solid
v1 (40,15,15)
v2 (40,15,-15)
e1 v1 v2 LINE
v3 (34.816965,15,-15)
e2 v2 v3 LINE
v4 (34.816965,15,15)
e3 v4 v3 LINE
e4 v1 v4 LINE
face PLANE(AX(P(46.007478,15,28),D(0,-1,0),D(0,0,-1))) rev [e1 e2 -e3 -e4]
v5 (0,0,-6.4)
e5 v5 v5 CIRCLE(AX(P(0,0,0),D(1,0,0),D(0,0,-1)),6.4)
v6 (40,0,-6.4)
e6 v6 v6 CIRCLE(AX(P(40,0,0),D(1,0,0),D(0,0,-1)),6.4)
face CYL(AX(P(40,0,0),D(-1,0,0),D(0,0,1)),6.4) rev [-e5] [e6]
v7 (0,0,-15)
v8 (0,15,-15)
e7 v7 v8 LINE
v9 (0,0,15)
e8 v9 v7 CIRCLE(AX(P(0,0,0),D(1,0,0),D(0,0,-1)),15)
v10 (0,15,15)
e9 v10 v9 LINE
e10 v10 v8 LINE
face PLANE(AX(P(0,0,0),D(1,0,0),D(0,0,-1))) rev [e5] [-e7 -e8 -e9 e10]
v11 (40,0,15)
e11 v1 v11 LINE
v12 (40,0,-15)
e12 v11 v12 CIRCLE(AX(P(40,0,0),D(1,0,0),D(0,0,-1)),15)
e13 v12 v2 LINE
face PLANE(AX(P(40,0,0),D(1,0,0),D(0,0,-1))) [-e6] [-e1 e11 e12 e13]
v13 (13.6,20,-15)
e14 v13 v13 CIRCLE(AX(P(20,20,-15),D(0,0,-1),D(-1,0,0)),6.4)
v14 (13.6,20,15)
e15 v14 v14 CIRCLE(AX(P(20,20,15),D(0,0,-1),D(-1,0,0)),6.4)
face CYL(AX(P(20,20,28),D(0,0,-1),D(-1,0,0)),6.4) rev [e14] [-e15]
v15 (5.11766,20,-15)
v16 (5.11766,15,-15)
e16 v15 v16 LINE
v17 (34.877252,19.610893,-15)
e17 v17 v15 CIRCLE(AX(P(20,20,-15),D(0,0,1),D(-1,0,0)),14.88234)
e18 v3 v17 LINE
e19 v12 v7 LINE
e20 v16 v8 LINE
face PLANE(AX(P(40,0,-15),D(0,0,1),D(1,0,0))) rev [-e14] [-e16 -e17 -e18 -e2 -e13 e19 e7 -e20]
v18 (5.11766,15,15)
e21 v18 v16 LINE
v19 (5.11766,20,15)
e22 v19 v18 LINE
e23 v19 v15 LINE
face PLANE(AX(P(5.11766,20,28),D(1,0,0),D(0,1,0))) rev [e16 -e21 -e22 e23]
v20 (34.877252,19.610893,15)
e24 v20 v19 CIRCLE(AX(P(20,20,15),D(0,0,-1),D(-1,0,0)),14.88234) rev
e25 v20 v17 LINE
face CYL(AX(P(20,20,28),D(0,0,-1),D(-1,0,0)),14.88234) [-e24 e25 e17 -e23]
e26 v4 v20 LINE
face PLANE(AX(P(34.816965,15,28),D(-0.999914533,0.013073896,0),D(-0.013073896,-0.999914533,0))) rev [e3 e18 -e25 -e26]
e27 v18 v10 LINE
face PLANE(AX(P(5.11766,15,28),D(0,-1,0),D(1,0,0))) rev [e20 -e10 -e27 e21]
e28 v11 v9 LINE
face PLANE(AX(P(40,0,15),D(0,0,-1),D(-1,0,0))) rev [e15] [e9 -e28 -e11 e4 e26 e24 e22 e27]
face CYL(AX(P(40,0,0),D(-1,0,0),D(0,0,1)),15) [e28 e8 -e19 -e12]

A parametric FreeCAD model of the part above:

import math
import FreeCAD as App
import Part
import Sketcher
from FreeCAD import Vector
Q = App.Units.Quantity

doc = App.newDocument("Part")
body = doc.addObject("PartDesign::Body", "Body")

sketch1 = body.newObject("Sketcher::SketchObject", "Sketch")
sketch1.AttachmentSupport = (doc.getObject("YZ_Plane"), [""])
sketch1.MapMode = "FlatFace"
sketch1.addGeometry([
    Part.LineSegment(Vector(0, -15, 0), Vector(35, -15, 0)),
    Part.LineSegment(Vector(35, -15, 0), Vector(35, 15, 0)),
    Part.LineSegment(Vector(35, 15, 0), Vector(0, 15, 0)),
    Part.ArcOfCircle(Part.Circle(Vector(0, 0, 0), Vector(0, 0, 1), 15), math.radians(90), math.radians(270)),
    Part.Circle(Vector(0, 0, 0), Vector(0, 0, 1), 6),
], False)
sketch1.addConstraint([
    Sketcher.Constraint("Coincident", 0, 2, 1, 1),
    Sketcher.Constraint("Coincident", 1, 2, 2, 1),
    Sketcher.Constraint("Tangent", 2, 2, 3, 1),
    Sketcher.Constraint("Tangent", 3, 2, 0, 1),
    Sketcher.Constraint("Horizontal", 0),
    Sketcher.Constraint("Vertical", 1),
    Sketcher.Constraint("Horizontal", 2),
    Sketcher.Constraint("Coincident", 3, 3, -1, 1),
    Sketcher.Constraint("Coincident", 4, 3, -1, 1),
    Sketcher.Constraint("Radius", 3, Q("15 mm")),
    Sketcher.Constraint("Diameter", 4, Q("12.8 mm")),
    Sketcher.Constraint("DistanceX", 0, 1, 0, 2, Q("35 mm")),
])
pad1 = body.newObject("PartDesign::Pad", "Pad")
pad1.Profile = sketch1
pad1.Length = 40

sketch2 = body.newObject("Sketcher::SketchObject", "Sketch001")
sketch2.AttachmentSupport = (doc.getObject("XY_Plane"), [""])
sketch2.MapMode = "FlatFace"
sketch2.AttachmentOffset = App.Placement(Vector(0, 0, -15), App.Rotation())
sketch2.addGeometry([
    Part.Circle(Vector(20, 20, 0), Vector(0, 0, 1), 6.4),
    Part.LineSegment(Vector(46, 15, 0), Vector(34.8, 15, 0)),
    Part.LineSegment(Vector(34.8, 15, 0), Vector(34.9, 19.6, 0)),
    Part.ArcOfCircle(Part.Circle(Vector(20, 20, 0), Vector(0, 0, 1), 14.9), math.radians(-1), math.radians(180)),
    Part.LineSegment(Vector(5.1, 20, 0), Vector(5.1, 15, 0)),
    Part.LineSegment(Vector(5.1, 15, 0), Vector(-8.6, 15, 0)),
    Part.LineSegment(Vector(-8.6, 15, 0), Vector(-8.6, 43, 0)),
    Part.LineSegment(Vector(-8.6, 43, 0), Vector(46, 43, 0)),
    Part.LineSegment(Vector(46, 43, 0), Vector(46, 15, 0)),
], False)
sketch2.addConstraint([
    Sketcher.Constraint("Coincident", 1, 2, 2, 1),
    Sketcher.Constraint("Coincident", 2, 2, 3, 1),
    Sketcher.Constraint("Tangent", 3, 2, 4, 1),
    Sketcher.Constraint("Coincident", 4, 2, 5, 1),
    Sketcher.Constraint("Coincident", 5, 2, 6, 1),
    Sketcher.Constraint("Coincident", 6, 2, 7, 1),
    Sketcher.Constraint("Coincident", 7, 2, 8, 1),
    Sketcher.Constraint("Coincident", 8, 2, 1, 1),
    Sketcher.Constraint("Horizontal", 1),
    Sketcher.Constraint("Vertical", 4),
    Sketcher.Constraint("Horizontal", 5),
    Sketcher.Constraint("Vertical", 6),
    Sketcher.Constraint("Horizontal", 7),
    Sketcher.Constraint("Vertical", 8),
    Sketcher.Constraint("Coincident", 3, 3, 0, 3),
    Sketcher.Constraint("Horizontal", 1, 2, 4, 2),
    Sketcher.Constraint("Diameter", 0, Q("12.8 mm")),
    Sketcher.Constraint("DistanceY", 4, 2, 4, 1, Q("5 mm")),
    Sketcher.Constraint("DistanceX", -1, 1, 0, 3, Q("20 mm")),
    Sketcher.Constraint("DistanceY", -1, 1, 0, 3, Q("20 mm")),
    Sketcher.Constraint("Radius", 3, Q("14.88234 mm")),
    Sketcher.Constraint("DistanceX", 1, 2, 1, 1, Q("11.190514 mm")),
    Sketcher.Constraint("DistanceX", 5, 2, 5, 1, Q("13.672865 mm")),
    Sketcher.Constraint("DistanceX", 7, 1, 7, 2, Q("54.562683 mm")),
    Sketcher.Constraint("DistanceY", 6, 1, 6, 2, Q("28.038004 mm")),
    Sketcher.Constraint("DistanceX", 3, 2, 2, 2, Q("29.759592 mm")),
])
pocket1 = body.newObject("PartDesign::Pocket", "Pocket")
pocket1.Profile = sketch2
pocket1.Length = 43
pocket1.Reversed = True

doc.recompute()
